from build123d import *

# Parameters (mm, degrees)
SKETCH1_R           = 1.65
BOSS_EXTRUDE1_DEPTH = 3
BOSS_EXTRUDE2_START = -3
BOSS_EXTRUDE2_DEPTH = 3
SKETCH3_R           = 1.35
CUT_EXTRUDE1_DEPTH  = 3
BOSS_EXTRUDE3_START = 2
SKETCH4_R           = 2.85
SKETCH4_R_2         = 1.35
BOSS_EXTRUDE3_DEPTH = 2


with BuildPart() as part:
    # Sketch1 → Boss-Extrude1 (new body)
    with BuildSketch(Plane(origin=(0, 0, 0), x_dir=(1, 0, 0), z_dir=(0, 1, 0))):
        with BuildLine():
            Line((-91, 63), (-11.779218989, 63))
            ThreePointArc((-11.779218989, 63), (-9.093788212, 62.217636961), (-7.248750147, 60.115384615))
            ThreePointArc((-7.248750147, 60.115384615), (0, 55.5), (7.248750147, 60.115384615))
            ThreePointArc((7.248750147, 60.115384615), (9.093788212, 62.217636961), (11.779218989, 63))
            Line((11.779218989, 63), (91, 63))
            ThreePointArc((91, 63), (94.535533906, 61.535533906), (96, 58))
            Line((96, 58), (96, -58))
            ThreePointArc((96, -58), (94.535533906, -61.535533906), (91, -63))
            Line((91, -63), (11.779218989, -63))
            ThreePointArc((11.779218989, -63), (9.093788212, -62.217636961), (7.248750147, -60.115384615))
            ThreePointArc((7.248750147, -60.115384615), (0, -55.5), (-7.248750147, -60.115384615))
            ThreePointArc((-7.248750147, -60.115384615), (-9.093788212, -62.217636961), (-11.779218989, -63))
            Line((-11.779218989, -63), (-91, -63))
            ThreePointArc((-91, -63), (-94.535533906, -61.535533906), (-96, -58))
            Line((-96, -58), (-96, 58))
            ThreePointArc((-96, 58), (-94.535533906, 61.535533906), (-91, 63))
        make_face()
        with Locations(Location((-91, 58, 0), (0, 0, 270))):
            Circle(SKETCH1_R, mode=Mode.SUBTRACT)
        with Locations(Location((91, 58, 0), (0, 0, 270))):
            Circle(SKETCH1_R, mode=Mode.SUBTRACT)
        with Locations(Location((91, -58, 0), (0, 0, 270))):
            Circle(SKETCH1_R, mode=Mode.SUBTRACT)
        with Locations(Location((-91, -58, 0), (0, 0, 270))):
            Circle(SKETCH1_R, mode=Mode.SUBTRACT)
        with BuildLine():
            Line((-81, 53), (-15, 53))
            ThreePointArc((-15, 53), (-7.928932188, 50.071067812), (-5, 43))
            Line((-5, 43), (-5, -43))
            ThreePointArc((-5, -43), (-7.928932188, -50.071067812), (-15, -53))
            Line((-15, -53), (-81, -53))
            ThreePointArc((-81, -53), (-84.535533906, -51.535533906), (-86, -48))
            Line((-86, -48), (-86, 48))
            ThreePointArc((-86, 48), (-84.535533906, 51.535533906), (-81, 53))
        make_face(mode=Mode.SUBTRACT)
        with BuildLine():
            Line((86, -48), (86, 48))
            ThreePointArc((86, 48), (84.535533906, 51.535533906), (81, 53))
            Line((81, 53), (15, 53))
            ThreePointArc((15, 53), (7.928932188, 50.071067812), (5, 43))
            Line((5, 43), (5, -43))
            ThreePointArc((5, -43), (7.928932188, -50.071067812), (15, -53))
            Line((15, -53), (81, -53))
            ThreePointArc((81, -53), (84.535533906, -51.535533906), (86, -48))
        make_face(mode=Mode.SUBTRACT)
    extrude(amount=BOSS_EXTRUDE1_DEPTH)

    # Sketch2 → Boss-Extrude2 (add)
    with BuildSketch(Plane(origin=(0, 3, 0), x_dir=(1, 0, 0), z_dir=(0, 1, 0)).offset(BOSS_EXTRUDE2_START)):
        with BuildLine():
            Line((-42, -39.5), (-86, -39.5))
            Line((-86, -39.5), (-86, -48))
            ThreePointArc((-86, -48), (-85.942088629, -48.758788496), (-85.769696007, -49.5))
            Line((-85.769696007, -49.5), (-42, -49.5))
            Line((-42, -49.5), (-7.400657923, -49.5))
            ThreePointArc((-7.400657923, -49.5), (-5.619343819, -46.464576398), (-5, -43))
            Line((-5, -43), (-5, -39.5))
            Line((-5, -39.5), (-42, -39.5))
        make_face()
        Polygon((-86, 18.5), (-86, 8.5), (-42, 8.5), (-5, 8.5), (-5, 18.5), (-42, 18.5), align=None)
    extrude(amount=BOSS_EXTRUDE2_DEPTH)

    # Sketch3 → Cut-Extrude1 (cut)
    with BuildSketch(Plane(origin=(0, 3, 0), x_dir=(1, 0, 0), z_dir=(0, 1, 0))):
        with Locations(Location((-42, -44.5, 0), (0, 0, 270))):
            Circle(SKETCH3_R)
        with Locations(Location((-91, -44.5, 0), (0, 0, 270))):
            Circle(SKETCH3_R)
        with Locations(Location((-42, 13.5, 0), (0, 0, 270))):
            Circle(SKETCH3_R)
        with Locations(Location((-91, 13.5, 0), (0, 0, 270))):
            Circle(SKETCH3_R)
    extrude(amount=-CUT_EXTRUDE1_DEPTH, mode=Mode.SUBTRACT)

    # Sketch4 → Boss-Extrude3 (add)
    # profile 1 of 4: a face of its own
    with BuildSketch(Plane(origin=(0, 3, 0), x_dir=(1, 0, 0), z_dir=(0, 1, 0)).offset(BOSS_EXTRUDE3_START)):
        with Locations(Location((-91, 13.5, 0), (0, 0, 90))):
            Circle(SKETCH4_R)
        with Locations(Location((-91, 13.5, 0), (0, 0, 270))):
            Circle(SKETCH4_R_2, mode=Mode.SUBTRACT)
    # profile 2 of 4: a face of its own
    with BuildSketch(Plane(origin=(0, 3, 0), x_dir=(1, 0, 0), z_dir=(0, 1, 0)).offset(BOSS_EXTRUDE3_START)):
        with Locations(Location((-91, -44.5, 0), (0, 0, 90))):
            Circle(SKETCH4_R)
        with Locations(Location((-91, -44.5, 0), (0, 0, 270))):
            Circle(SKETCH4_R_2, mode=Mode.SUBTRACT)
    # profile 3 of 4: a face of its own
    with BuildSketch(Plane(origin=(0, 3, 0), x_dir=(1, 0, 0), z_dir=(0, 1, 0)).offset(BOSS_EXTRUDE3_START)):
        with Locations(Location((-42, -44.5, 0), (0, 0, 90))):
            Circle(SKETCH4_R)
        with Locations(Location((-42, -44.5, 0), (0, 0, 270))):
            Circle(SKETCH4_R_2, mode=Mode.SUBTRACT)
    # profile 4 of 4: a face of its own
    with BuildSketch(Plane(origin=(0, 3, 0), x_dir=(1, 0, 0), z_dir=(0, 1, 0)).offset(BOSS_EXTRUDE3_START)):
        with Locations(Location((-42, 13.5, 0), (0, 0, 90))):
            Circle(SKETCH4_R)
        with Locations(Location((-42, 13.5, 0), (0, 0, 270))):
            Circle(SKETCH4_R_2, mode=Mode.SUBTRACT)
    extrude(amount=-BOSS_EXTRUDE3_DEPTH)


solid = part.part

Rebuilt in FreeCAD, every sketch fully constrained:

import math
import FreeCAD as App
import Part
import Sketcher

V = App.Vector
Q = App.Units.Quantity

doc = App.newDocument("Part")
params = doc.addObject("Spreadsheet::Sheet", "Params")
for row, (alias, value) in enumerate([
    ("sketch1_radius", "5 mm"),
    ("sketch1_radius2", "8 mm"),
    ("sketch1_radius3", "10 mm"),
    ("sketch1_diameter", "3.3 mm"),
    ("sketch1_width", "66 mm"),
    ("pad1_length", "3 mm"),
    ("sketch2_radius", "5 mm"),
    ("sketch2_radius2", "10 mm"),
    ("sketch2_width", "81 mm"),
    ("sketch2_height", "10 mm"),
    ("sketch2_height2", "8.5 mm"),
    ("pad2_length", "3 mm"),
    ("sketch3_diameter", "2.7 mm"),
    ("pocket1_length", "3 mm"),
    ("sketch4_diameter", "5.7 mm"),
    ("sketch4_diameter2", "2.7 mm"),
    ("pad3_length", "2 mm"),
], start=1):
    params.set(f"A{row}", alias)
    params.set(f"B{row}", "=" + value)
    params.setAlias(f"B{row}", alias)

body = doc.addObject("PartDesign::Body", "Body")

sketch1 = body.newObject("Sketcher::SketchObject", "Sketch")
sketch1.AttachmentSupport = (doc.getObject("XZ_Plane"), [""])
sketch1.MapMode = "FlatFace"
sketch1.addGeometry(Part.LineSegment(V(-11.779219, -63, 0), V(-91, -63, 0)), False)
sketch1.addGeometry(Part.ArcOfCircle(Part.Circle(V(-91, -58, 0), V(0, 0, 1), 5), math.radians(180), math.radians(270)), False)
sketch1.addGeometry(Part.LineSegment(V(-96, -58, 0), V(-96, 58, 0)), False)
sketch1.addGeometry(Part.ArcOfCircle(Part.Circle(V(-91, 58, 0), V(0, 0, 1), 5), math.radians(90), math.radians(180)), False)
sketch1.addGeometry(Part.LineSegment(V(-91, 63, 0), V(-11.779219, 63, 0)), False)
sketch1.addGeometry(Part.ArcOfCircle(Part.Circle(V(-11.779219, 58, 0), V(0, 0, 1), 5), math.radians(25.029), math.radians(90)), False)
sketch1.addGeometry(Part.ArcOfCircle(Part.Circle(V(0, 63.5, 0), V(0, 0, 1), 8), math.radians(-154.971001), math.radians(-25.028999)), False)
sketch1.addGeometry(Part.ArcOfCircle(Part.Circle(V(11.779219, 58, 0), V(0, 0, 1), 5), math.radians(90), math.radians(154.971)), False)
sketch1.addGeometry(Part.LineSegment(V(11.779219, 63, 0), V(91, 63, 0)), False)
sketch1.addGeometry(Part.ArcOfCircle(Part.Circle(V(91, 58, 0), V(0, 0, 1), 5), math.radians(0), math.radians(90)), False)
sketch1.addGeometry(Part.LineSegment(V(96, 58, 0), V(96, -58, 0)), False)
sketch1.addGeometry(Part.ArcOfCircle(Part.Circle(V(91, -58, 0), V(0, 0, 1), 5), math.radians(-90), math.radians(0)), False)
sketch1.addGeometry(Part.LineSegment(V(91, -63, 0), V(11.779219, -63, 0)), False)
sketch1.addGeometry(Part.ArcOfCircle(Part.Circle(V(11.779219, -58, 0), V(0, 0, 1), 5), math.radians(-154.971), math.radians(-90)), False)
sketch1.addGeometry(Part.ArcOfCircle(Part.Circle(V(0, -63.5, 0), V(0, 0, 1), 8), math.radians(25.028999), math.radians(154.971001)), False)
sketch1.addGeometry(Part.ArcOfCircle(Part.Circle(V(-11.779219, -58, 0), V(0, 0, 1), 5), math.radians(-90), math.radians(-25.029)), False)
sketch1.addGeometry(Part.Circle(V(91, 58, 0), V(0, 0, 1), 1.65), False)
sketch1.addGeometry(Part.Circle(V(-91, 58, 0), V(0, 0, 1), 1.65), False)
sketch1.addGeometry(Part.ArcOfCircle(Part.Circle(V(81, 48, 0), V(0, 0, 1), 5), math.radians(0), math.radians(90)), False)
sketch1.addGeometry(Part.LineSegment(V(81, 53, 0), V(15, 53, 0)), False)
sketch1.addGeometry(Part.ArcOfCircle(Part.Circle(V(15, 43, 0), V(0, 0, 1), 10), math.radians(90), math.radians(180)), False)
sketch1.addGeometry(Part.LineSegment(V(5, 43, 0), V(5, -43, 0)), False)
sketch1.addGeometry(Part.ArcOfCircle(Part.Circle(V(15, -43, 0), V(0, 0, 1), 10), math.radians(180), math.radians(270)), False)
sketch1.addGeometry(Part.LineSegment(V(15, -53, 0), V(81, -53, 0)), False)
sketch1.addGeometry(Part.ArcOfCircle(Part.Circle(V(81, -48, 0), V(0, 0, 1), 5), math.radians(-90), math.radians(0)), False)
sketch1.addGeometry(Part.LineSegment(V(86, -48, 0), V(86, 48, 0)), False)
sketch1.addGeometry(Part.Circle(V(91, -58, 0), V(0, 0, 1), 1.65), False)
sketch1.addGeometry(Part.LineSegment(V(-81, -53, 0), V(-15, -53, 0)), False)
sketch1.addGeometry(Part.ArcOfCircle(Part.Circle(V(-15, -43, 0), V(0, 0, 1), 10), math.radians(-90), math.radians(0)), False)
sketch1.addGeometry(Part.LineSegment(V(-5, -43, 0), V(-5, 43, 0)), False)
sketch1.addGeometry(Part.ArcOfCircle(Part.Circle(V(-15, 43, 0), V(0, 0, 1), 10), math.radians(0), math.radians(90)), False)
sketch1.addGeometry(Part.LineSegment(V(-15, 53, 0), V(-81, 53, 0)), False)
sketch1.addGeometry(Part.ArcOfCircle(Part.Circle(V(-81, 48, 0), V(0, 0, 1), 5), math.radians(90), math.radians(180)), False)
sketch1.addGeometry(Part.LineSegment(V(-86, 48, 0), V(-86, -48, 0)), False)
sketch1.addGeometry(Part.ArcOfCircle(Part.Circle(V(-81, -48, 0), V(0, 0, 1), 5), math.radians(180), math.radians(270)), False)
sketch1.addGeometry(Part.Circle(V(-91, -58, 0), V(0, 0, 1), 1.65), False)
sketch1.addConstraint(Sketcher.Constraint("Tangent", 0, 2, 1, 2))
sketch1.addConstraint(Sketcher.Constraint("Tangent", 1, 1, 2, 1))
sketch1.addConstraint(Sketcher.Constraint("Tangent", 2, 2, 3, 2))
sketch1.addConstraint(Sketcher.Constraint("Tangent", 3, 1, 4, 1))
sketch1.addConstraint(Sketcher.Constraint("Tangent", 4, 2, 5, 2))
sketch1.addConstraint(Sketcher.Constraint("Tangent", 5, 1, 6, 1))
sketch1.addConstraint(Sketcher.Constraint("Tangent", 6, 2, 7, 2))
sketch1.addConstraint(Sketcher.Constraint("Tangent", 7, 1, 8, 1))
sketch1.addConstraint(Sketcher.Constraint("Tangent", 8, 2, 9, 2))
sketch1.addConstraint(Sketcher.Constraint("Tangent", 9, 1, 10, 1))
sketch1.addConstraint(Sketcher.Constraint("Tangent", 10, 2, 11, 2))
sketch1.addConstraint(Sketcher.Constraint("Tangent", 11, 1, 12, 1))
sketch1.addConstraint(Sketcher.Constraint("Tangent", 12, 2, 13, 2))
sketch1.addConstraint(Sketcher.Constraint("Tangent", 13, 1, 14, 1))
sketch1.addConstraint(Sketcher.Constraint("Tangent", 14, 2, 15, 2))
sketch1.addConstraint(Sketcher.Constraint("Tangent", 15, 1, 0, 1))
sketch1.addConstraint(Sketcher.Constraint("Tangent", 18, 2, 19, 1))
sketch1.addConstraint(Sketcher.Constraint("Tangent", 19, 2, 20, 1))
sketch1.addConstraint(Sketcher.Constraint("Tangent", 20, 2, 21, 1))
sketch1.addConstraint(Sketcher.Constraint("Tangent", 21, 2, 22, 1))
sketch1.addConstraint(Sketcher.Constraint("Tangent", 22, 2, 23, 1))
sketch1.addConstraint(Sketcher.Constraint("Tangent", 23, 2, 24, 1))
sketch1.addConstraint(Sketcher.Constraint("Tangent", 24, 2, 25, 1))
sketch1.addConstraint(Sketcher.Constraint("Tangent", 25, 2, 18, 1))
sketch1.addConstraint(Sketcher.Constraint("Tangent", 27, 2, 28, 1))
sketch1.addConstraint(Sketcher.Constraint("Tangent", 28, 2, 29, 1))
sketch1.addConstraint(Sketcher.Constraint("Tangent", 29, 2, 30, 1))
sketch1.addConstraint(Sketcher.Constraint("Tangent", 30, 2, 31, 1))
sketch1.addConstraint(Sketcher.Constraint("Tangent", 31, 2, 32, 1))
sketch1.addConstraint(Sketcher.Constraint("Tangent", 32, 2, 33, 1))
sketch1.addConstraint(Sketcher.Constraint("Tangent", 33, 2, 34, 1))
sketch1.addConstraint(Sketcher.Constraint("Tangent", 34, 2, 27, 1))
sketch1.addConstraint(Sketcher.Constraint("Horizontal", 0))
sketch1.addConstraint(Sketcher.Constraint("Vertical", 2))
sketch1.addConstraint(Sketcher.Constraint("Horizontal", 4))
sketch1.addConstraint(Sketcher.Constraint("Horizontal", 8))
sketch1.addConstraint(Sketcher.Constraint("Vertical", 10))
sketch1.addConstraint(Sketcher.Constraint("Horizontal", 12))
sketch1.addConstraint(Sketcher.Constraint("Horizontal", 19))
sketch1.addConstraint(Sketcher.Constraint("Vertical", 21))
sketch1.addConstraint(Sketcher.Constraint("Horizontal", 23))
sketch1.addConstraint(Sketcher.Constraint("Vertical", 25))
sketch1.addConstraint(Sketcher.Constraint("Horizontal", 27))
sketch1.addConstraint(Sketcher.Constraint("Vertical", 29))
sketch1.addConstraint(Sketcher.Constraint("Horizontal", 31))
sketch1.addConstraint(Sketcher.Constraint("Vertical", 33))
sketch1.addConstraint(Sketcher.Constraint("Coincident", 16, 3, 9, 3))
sketch1.addConstraint(Sketcher.Constraint("Coincident", 17, 3, 3, 3))
sketch1.addConstraint(Sketcher.Constraint("Coincident", 26, 3, 11, 3))
sketch1.addConstraint(Sketcher.Constraint("Coincident", 35, 3, 1, 3))
sketch1.addConstraint(Sketcher.Constraint("Equal", 1, 3))
sketch1.addConstraint(Sketcher.Constraint("Equal", 3, 5))
sketch1.addConstraint(Sketcher.Constraint("Equal", 5, 7))
sketch1.addConstraint(Sketcher.Constraint("Equal", 7, 9))
sketch1.addConstraint(Sketcher.Constraint("Equal", 9, 11))
sketch1.addConstraint(Sketcher.Constraint("Equal", 11, 13))
sketch1.addConstraint(Sketcher.Constraint("Equal", 6, 14))
sketch1.addConstraint(Sketcher.Constraint("Equal", 13, 15))
sketch1.addConstraint(Sketcher.Constraint("Equal", 16, 17))
sketch1.addConstraint(Sketcher.Constraint("Equal", 15, 18))
sketch1.addConstraint(Sketcher.Constraint("Equal", 20, 22))
sketch1.addConstraint(Sketcher.Constraint("Equal", 18, 24))
sketch1.addConstraint(Sketcher.Constraint("Equal", 17, 26))
sketch1.addConstraint(Sketcher.Constraint("Equal", 22, 28))
sketch1.addConstraint(Sketcher.Constraint("Equal", 28, 30))
sketch1.addConstraint(Sketcher.Constraint("Equal", 24, 32))
sketch1.addConstraint(Sketcher.Constraint("Equal", 32, 34))
sketch1.addConstraint(Sketcher.Constraint("Equal", 26, 35))
sketch1.addConstraint(Sketcher.Constraint("Symmetric", 1, 3, 9, 3, -1, 1))
sketch1.addConstraint(Sketcher.Constraint("Symmetric", 5, 3, 13, 3, -1, 1))
sketch1.addConstraint(Sketcher.Constraint("Symmetric", 20, 3, 28, 3, -1, 1))
sketch1.addConstraint(Sketcher.Constraint("Symmetric", 24, 3, 32, 3, -1, 1))
sketch1.addConstraint(Sketcher.Constraint("Symmetric", 5, 3, 7, 3, -2))
sketch1.addConstraint(Sketcher.Constraint("PointOnObject", 14, 3, -2))
sketch1.addConstraint(Sketcher.Constraint("Horizontal", 22, 3, 28, 3))
sketch1.addConstraint(Sketcher.Constraint("Radius", 1, Q("5 mm")))
sketch1.addConstraint(Sketcher.Constraint("Radius", 6, Q("8 mm")))
sketch1.addConstraint(Sketcher.Constraint("Radius", 20, Q("10 mm")))
sketch1.addConstraint(Sketcher.Constraint("Diameter", 16, Q("3.3 mm")))
sketch1.addConstraint(Sketcher.Constraint("DistanceX", 19, 2, 19, 1, Q("66 mm")))
sketch1.addConstraint(Sketcher.Constraint("DistanceY", 2, 1, 2, 2, Q("116 mm")))
sketch1.addConstraint(Sketcher.Constraint("DistanceY", 21, 2, 21, 1, Q("86 mm")))
sketch1.addConstraint(Sketcher.Constraint("DistanceX", 1, 3, -1, 1, Q("91 mm")))
sketch1.addConstraint(Sketcher.Constraint("DistanceX", -1, 1, 18, 3, Q("81 mm")))
sketch1.addConstraint(Sketcher.Constraint("DistanceY", -1, 1, 6, 3, Q("63.5 mm")))
sketch1.setExpression("Constraints[75]", "Params.sketch1_radius")
sketch1.setExpression("Constraints[76]", "Params.sketch1_radius2")
sketch1.setExpression("Constraints[77]", "Params.sketch1_radius3")
sketch1.setExpression("Constraints[78]", "Params.sketch1_diameter")
sketch1.setExpression("Constraints[79]", "Params.sketch1_width")
pad1 = body.newObject("PartDesign::Pad", "Pad")
pad1.Profile = sketch1
pad1.setExpression("Length", "Params.pad1_length")
pad1.Reversed = True

sketch2 = body.newObject("Sketcher::SketchObject", "Sketch001")
sketch2.AttachmentSupport = (doc.getObject("XZ_Plane"), [""])
sketch2.MapMode = "FlatFace"
sketch2.addGeometry(Part.LineSegment(V(-86, 39.5, 0), V(-86, 48, 0)), False)
sketch2.addGeometry(Part.ArcOfCircle(Part.Circle(V(-81, 48, 0), V(0, 0, 1), 5), math.radians(162.542397), math.radians(180)), False)
sketch2.addGeometry(Part.LineSegment(V(-85.769696, 49.5, 0), V(-7.400658, 49.5, 0)), False)
sketch2.addGeometry(Part.ArcOfCircle(Part.Circle(V(-15, 43, 0), V(0, 0, 1), 10), math.radians(0), math.radians(40.541602)), False)
sketch2.addGeometry(Part.LineSegment(V(-5, 43, 0), V(-5, 39.5, 0)), False)
sketch2.addGeometry(Part.LineSegment(V(-5, 39.5, 0), V(-86, 39.5, 0)), False)
sketch2.addGeometry(Part.LineSegment(V(-86, -18.5, 0), V(-86, -8.5, 0)), False)
sketch2.addGeometry(Part.LineSegment(V(-86, -8.5, 0), V(-5, -8.5, 0)), False)
sketch2.addGeometry(Part.LineSegment(V(-5, -8.5, 0), V(-5, -18.5, 0)), False)
sketch2.addGeometry(Part.LineSegment(V(-5, -18.5, 0), V(-86, -18.5, 0)), False)
sketch2.addConstraint(Sketcher.Constraint("Tangent", 0, 2, 1, 2))
sketch2.addConstraint(Sketcher.Constraint("Coincident", 1, 1, 2, 1))
sketch2.addConstraint(Sketcher.Constraint("Coincident", 2, 2, 3, 2))
sketch2.addConstraint(Sketcher.Constraint("Tangent", 3, 1, 4, 1))
sketch2.addConstraint(Sketcher.Constraint("Coincident", 4, 2, 5, 1))
sketch2.addConstraint(Sketcher.Constraint("Coincident", 5, 2, 0, 1))
sketch2.addConstraint(Sketcher.Constraint("Coincident", 6, 2, 7, 1))
sketch2.addConstraint(Sketcher.Constraint("Coincident", 7, 2, 8, 1))
sketch2.addConstraint(Sketcher.Constraint("Coincident", 8, 2, 9, 1))
sketch2.addConstraint(Sketcher.Constraint("Coincident", 9, 2, 6, 1))
sketch2.addConstraint(Sketcher.Constraint("Vertical", 0))
sketch2.addConstraint(Sketcher.Constraint("Horizontal", 2))
sketch2.addConstraint(Sketcher.Constraint("Vertical", 4))
sketch2.addConstraint(Sketcher.Constraint("Horizontal", 5))
sketch2.addConstraint(Sketcher.Constraint("Vertical", 6))
sketch2.addConstraint(Sketcher.Constraint("Horizontal", 7))
sketch2.addConstraint(Sketcher.Constraint("Vertical", 8))
sketch2.addConstraint(Sketcher.Constraint("Horizontal", 9))
sketch2.addConstraint(Sketcher.Constraint("Vertical", 5, 2, 6, 2))
sketch2.addConstraint(Sketcher.Constraint("Vertical", 4, 2, 7, 2))
sketch2.addConstraint(Sketcher.Constraint("Radius", 1, Q("5 mm")))
sketch2.addConstraint(Sketcher.Constraint("Radius", 3, Q("10 mm")))
sketch2.addConstraint(Sketcher.Constraint("DistanceX", 5, 2, 5, 1, Q("81 mm")))
sketch2.addConstraint(Sketcher.Constraint("DistanceY", 6, 1, 6, 2, Q("10 mm")))
sketch2.addConstraint(Sketcher.Constraint("DistanceY", 0, 1, 0, 2, Q("8.5 mm")))
sketch2.addConstraint(Sketcher.Constraint("DistanceY", 4, 2, 4, 1, Q("3.5 mm")))
sketch2.addConstraint(Sketcher.Constraint("DistanceX", 1, 3, -1, 1, Q("81 mm")))
sketch2.addConstraint(Sketcher.Constraint("DistanceY", -1, 1, 1, 3, Q("48 mm")))
sketch2.addConstraint(Sketcher.Constraint("DistanceY", 4, 2, 2, 2, Q("10 mm")))
sketch2.addConstraint(Sketcher.Constraint("DistanceY", 6, 2, 5, 2, Q("48 mm")))
sketch2.setExpression("Constraints[20]", "Params.sketch2_radius")
sketch2.setExpression("Constraints[21]", "Params.sketch2_radius2")
sketch2.setExpression("Constraints[22]", "Params.sketch2_width")
sketch2.setExpression("Constraints[23]", "Params.sketch2_height")
sketch2.setExpression("Constraints[24]", "Params.sketch2_height2")
pad2 = body.newObject("PartDesign::Pad", "Pad001")
pad2.Profile = sketch2
pad2.setExpression("Length", "Params.pad2_length")
pad2.Reversed = True

sketch3 = body.newObject("Sketcher::SketchObject", "Sketch002")
sketch3.AttachmentSupport = (doc.getObject("XZ_Plane"), [""])
sketch3.MapMode = "FlatFace"
sketch3.AttachmentOffset = App.Placement(V(0, 0, -3), App.Rotation())
sketch3.addGeometry(Part.Circle(V(-42, 44.5, 0), V(0, 0, 1), 1.35), False)
sketch3.addGeometry(Part.Circle(V(-91, 44.5, 0), V(0, 0, 1), 1.35), False)
sketch3.addGeometry(Part.Circle(V(-42, -13.5, 0), V(0, 0, 1), 1.35), False)
sketch3.addGeometry(Part.Circle(V(-91, -13.5, 0), V(0, 0, 1), 1.35), False)
sketch3.addConstraint(Sketcher.Constraint("Equal", 0, 1))
sketch3.addConstraint(Sketcher.Constraint("Equal", 1, 2))
sketch3.addConstraint(Sketcher.Constraint("Equal", 2, 3))
sketch3.addConstraint(Sketcher.Constraint("Horizontal", 0, 3, 1, 3))
sketch3.addConstraint(Sketcher.Constraint("Horizontal", 2, 3, 3, 3))
sketch3.addConstraint(Sketcher.Constraint("Vertical", 0, 3, 2, 3))
sketch3.addConstraint(Sketcher.Constraint("Vertical", 1, 3, 3, 3))
sketch3.addConstraint(Sketcher.Constraint("Diameter", 0, Q("2.7 mm")))
sketch3.addConstraint(Sketcher.Constraint("DistanceX", 0, 3, -1, 1, Q("42 mm")))
sketch3.addConstraint(Sketcher.Constraint("DistanceX", 1, 3, -1, 1, Q("91 mm")))
sketch3.addConstraint(Sketcher.Constraint("DistanceY", 2, 3, 0, 3, Q("58 mm")))
sketch3.addConstraint(Sketcher.Constraint("DistanceY", -1, 1, 0, 3, Q("44.5 mm")))
sketch3.setExpression("Constraints[7]", "Params.sketch3_diameter")
pocket1 = body.newObject("PartDesign::Pocket", "Pocket")
pocket1.Profile = sketch3
pocket1.setExpression("Length", "Params.pocket1_length")
pocket1.Reversed = True

sketch4 = body.newObject("Sketcher::SketchObject", "Sketch003")
sketch4.AttachmentSupport = (doc.getObject("XZ_Plane"), [""])
sketch4.MapMode = "FlatFace"
sketch4.AttachmentOffset = App.Placement(V(0, 0, -5), App.Rotation())
sketch4.addGeometry(Part.Circle(V(-91, -13.5, 0), V(0, 0, 1), 2.85), False)
sketch4.addGeometry(Part.Circle(V(-91, -13.5, 0), V(0, 0, 1), 1.35), False)
sketch4.addGeometry(Part.Circle(V(-91, 44.5, 0), V(0, 0, 1), 2.85), False)
sketch4.addGeometry(Part.Circle(V(-91, 44.5, 0), V(0, 0, 1), 1.35), False)
sketch4.addGeometry(Part.Circle(V(-42, 44.5, 0), V(0, 0, 1), 2.85), False)
sketch4.addGeometry(Part.Circle(V(-42, 44.5, 0), V(0, 0, 1), 1.35), False)
sketch4.addGeometry(Part.Circle(V(-42, -13.5, 0), V(0, 0, 1), 2.85), False)
sketch4.addGeometry(Part.Circle(V(-42, -13.5, 0), V(0, 0, 1), 1.35), False)
sketch4.addConstraint(Sketcher.Constraint("Coincident", 1, 3, 0, 3))
sketch4.addConstraint(Sketcher.Constraint("Coincident", 3, 3, 2, 3))
sketch4.addConstraint(Sketcher.Constraint("Coincident", 5, 3, 4, 3))
sketch4.addConstraint(Sketcher.Constraint("Coincident", 7, 3, 6, 3))
sketch4.addConstraint(Sketcher.Constraint("Equal", 0, 2))
sketch4.addConstraint(Sketcher.Constraint("Equal", 1, 3))
sketch4.addConstraint(Sketcher.Constraint("Equal", 2, 4))
sketch4.addConstraint(Sketcher.Constraint("Equal", 3, 5))
sketch4.addConstraint(Sketcher.Constraint("Equal", 4, 6))
sketch4.addConstraint(Sketcher.Constraint("Equal", 5, 7))
sketch4.addConstraint(Sketcher.Constraint("Horizontal", 3, 3, 4, 3))
sketch4.addConstraint(Sketcher.Constraint("Horizontal", 1, 3, 6, 3))
sketch4.addConstraint(Sketcher.Constraint("Vertical", 1, 3, 2, 3))
sketch4.addConstraint(Sketcher.Constraint("Vertical", 5, 3, 6, 3))
sketch4.addConstraint(Sketcher.Constraint("Diameter", 0, Q("5.7 mm")))
sketch4.addConstraint(Sketcher.Constraint("Diameter", 1, Q("2.7 mm")))
sketch4.addConstraint(Sketcher.Constraint("DistanceX", 0, 3, -1, 1, Q("91 mm")))
sketch4.addConstraint(Sketcher.Constraint("DistanceX", 4, 3, -1, 1, Q("42 mm")))
sketch4.addConstraint(Sketcher.Constraint("DistanceY", 0, 3, 2, 3, Q("58 mm")))
sketch4.addConstraint(Sketcher.Constraint("DistanceY", 0, 3, -1, 1, Q("13.5 mm")))
sketch4.setExpression("Constraints[14]", "Params.sketch4_diameter")
sketch4.setExpression("Constraints[15]", "Params.sketch4_diameter2")
pad3 = body.newObject("PartDesign::Pad", "Pad002")
pad3.Profile = sketch4
pad3.setExpression("Length", "Params.pad3_length")

doc.recompute()
